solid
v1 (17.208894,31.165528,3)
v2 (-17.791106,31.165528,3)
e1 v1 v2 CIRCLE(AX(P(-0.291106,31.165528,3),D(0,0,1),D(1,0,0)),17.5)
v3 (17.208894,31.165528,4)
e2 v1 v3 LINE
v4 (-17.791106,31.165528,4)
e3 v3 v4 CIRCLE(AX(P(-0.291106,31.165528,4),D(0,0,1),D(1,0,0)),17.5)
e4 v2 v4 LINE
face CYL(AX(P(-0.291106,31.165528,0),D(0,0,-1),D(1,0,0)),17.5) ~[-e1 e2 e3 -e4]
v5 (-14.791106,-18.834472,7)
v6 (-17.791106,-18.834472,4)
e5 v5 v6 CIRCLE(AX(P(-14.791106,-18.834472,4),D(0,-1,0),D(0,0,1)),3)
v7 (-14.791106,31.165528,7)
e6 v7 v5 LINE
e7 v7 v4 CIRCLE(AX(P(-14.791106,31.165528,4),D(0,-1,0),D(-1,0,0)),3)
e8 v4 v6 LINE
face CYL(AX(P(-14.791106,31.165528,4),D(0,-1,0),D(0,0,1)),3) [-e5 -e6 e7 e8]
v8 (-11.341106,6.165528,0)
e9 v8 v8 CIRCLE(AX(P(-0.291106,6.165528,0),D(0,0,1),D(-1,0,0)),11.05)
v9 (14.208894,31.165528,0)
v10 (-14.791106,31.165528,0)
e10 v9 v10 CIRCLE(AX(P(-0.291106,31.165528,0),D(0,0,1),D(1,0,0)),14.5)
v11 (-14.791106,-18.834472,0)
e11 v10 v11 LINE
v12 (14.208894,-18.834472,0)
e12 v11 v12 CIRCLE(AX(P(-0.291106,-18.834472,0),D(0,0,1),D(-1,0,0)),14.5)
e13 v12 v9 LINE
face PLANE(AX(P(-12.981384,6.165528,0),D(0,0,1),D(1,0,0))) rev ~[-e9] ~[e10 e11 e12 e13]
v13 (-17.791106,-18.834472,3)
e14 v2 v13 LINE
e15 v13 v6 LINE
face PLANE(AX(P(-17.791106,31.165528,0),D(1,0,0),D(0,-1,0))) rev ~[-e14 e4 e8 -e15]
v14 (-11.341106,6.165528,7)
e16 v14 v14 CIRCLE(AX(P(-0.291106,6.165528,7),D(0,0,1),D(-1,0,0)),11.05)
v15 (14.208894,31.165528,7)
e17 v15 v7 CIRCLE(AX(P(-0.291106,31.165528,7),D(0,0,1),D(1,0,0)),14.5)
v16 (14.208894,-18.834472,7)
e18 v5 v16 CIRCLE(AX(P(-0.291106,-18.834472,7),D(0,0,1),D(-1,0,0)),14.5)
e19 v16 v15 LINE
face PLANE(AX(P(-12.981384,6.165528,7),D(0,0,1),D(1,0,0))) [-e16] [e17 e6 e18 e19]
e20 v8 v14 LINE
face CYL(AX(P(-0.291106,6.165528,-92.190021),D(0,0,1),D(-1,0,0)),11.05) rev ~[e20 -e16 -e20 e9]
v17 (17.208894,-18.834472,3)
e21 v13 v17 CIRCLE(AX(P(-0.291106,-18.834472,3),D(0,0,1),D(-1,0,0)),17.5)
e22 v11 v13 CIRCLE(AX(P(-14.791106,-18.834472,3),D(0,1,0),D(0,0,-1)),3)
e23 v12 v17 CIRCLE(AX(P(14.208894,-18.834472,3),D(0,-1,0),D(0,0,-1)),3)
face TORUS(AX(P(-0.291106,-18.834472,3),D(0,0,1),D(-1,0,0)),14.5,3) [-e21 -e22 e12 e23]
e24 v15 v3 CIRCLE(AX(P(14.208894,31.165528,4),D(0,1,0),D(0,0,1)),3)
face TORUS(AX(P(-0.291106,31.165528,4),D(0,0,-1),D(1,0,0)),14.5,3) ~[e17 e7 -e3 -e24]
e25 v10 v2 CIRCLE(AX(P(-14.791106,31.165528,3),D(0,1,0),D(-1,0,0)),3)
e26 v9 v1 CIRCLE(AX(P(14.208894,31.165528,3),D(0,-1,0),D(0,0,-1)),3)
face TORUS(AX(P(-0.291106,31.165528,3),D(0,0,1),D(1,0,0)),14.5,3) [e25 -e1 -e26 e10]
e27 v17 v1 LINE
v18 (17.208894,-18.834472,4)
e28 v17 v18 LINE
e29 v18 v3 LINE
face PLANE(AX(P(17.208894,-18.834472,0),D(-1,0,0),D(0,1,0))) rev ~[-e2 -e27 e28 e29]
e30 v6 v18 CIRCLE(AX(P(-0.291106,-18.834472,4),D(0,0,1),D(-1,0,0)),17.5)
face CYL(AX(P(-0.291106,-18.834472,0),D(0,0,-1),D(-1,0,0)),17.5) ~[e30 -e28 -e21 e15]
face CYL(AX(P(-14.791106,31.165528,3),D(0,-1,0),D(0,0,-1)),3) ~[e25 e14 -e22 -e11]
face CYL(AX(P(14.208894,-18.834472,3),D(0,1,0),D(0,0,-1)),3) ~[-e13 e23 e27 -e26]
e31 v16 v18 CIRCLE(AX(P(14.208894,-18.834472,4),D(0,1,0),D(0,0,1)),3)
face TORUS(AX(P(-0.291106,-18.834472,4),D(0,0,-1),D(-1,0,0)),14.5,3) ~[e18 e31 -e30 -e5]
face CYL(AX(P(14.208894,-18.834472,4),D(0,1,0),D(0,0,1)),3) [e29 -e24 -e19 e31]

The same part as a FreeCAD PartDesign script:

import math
import FreeCAD as App
import Part
import Sketcher

V = App.Vector
Q = App.Units.Quantity


def edges_at(feature, points):
    """Names of the edges that pass closest to the given points."""
    edges = feature.Shape.Edges
    near = lambda p: min(range(len(edges)), key=lambda i: edges[i].distToShape(Part.Vertex(*p))[0])
    return sorted({f"Edge{near(p) + 1}" for p in points})

doc = App.newDocument("Part")
body = doc.addObject("PartDesign::Body", "Body")

# Sketch on XY plane
sketch1 = body.newObject("Sketcher::SketchObject", "Sketch")
sketch1.AttachmentSupport = (doc.getObject("XY_Plane"), [""])
sketch1.MapMode = "FlatFace"
sketch1.addGeometry(Part.LineSegment(V(-18, 31, 0), V(-18, -19, 0)), False)
sketch1.addGeometry(Part.ArcOfCircle(Part.Circle(V(0, -19, 0), V(0, 0, 1), 18), math.radians(180), math.radians(360)), False)
sketch1.addGeometry(Part.LineSegment(V(17, -19, 0), V(17, 31, 0)), False)
sketch1.addGeometry(Part.ArcOfCircle(Part.Circle(V(0, 31, 0), V(0, 0, 1), 18), math.radians(0), math.radians(180)), False)
sketch1.addConstraint(Sketcher.Constraint("Tangent", 0, 2, 1, 1))
sketch1.addConstraint(Sketcher.Constraint("Tangent", 1, 2, 2, 1))
sketch1.addConstraint(Sketcher.Constraint("Tangent", 2, 2, 3, 1))
sketch1.addConstraint(Sketcher.Constraint("Tangent", 3, 2, 0, 1))
sketch1.addConstraint(Sketcher.Constraint("Vertical", 0))
sketch1.addConstraint(Sketcher.Constraint("Vertical", 2))
sketch1.addConstraint(Sketcher.Constraint("Radius", 1, Q("17.5 mm")))
sketch1.addConstraint(Sketcher.Constraint("DistanceY", 0, 2, 0, 1, Q("50 mm")))
sketch1.addConstraint(Sketcher.Constraint("DistanceY", 1, 3, -1, 1, Q("18.834472 mm")))
sketch1.addConstraint(Sketcher.Constraint("DistanceX", 1, 3, -1, 1, Q("0.291106 mm")))
pad1 = body.newObject("PartDesign::Pad", "Pad")
pad1.Profile = sketch1
pad1.Length = 7

# Sketch on XY plane
sketch2 = body.newObject("Sketcher::SketchObject", "Sketch001")
sketch2.AttachmentSupport = (doc.getObject("XY_Plane"), [""])
sketch2.MapMode = "FlatFace"
sketch2.addGeometry(Part.Circle(V(0, 6, 0), V(0, 0, 1), 11), False)
sketch2.addConstraint(Sketcher.Constraint("Diameter", 0, Q("22.1 mm")))
sketch2.addConstraint(Sketcher.Constraint("DistanceY", -1, 1, 0, 3, Q("6.165528 mm")))
sketch2.addConstraint(Sketcher.Constraint("DistanceX", 0, 3, -1, 1, Q("0.291106 mm")))
doc.recompute()
hole = body.newObject("PartDesign::Hole", "Hole")
hole.Profile = sketch2
hole.ThreadType = "None"
hole.Diameter = 22.1
hole.DepthType = "ThroughAll"
hole.Reversed = True
doc.recompute()

fillet = body.newObject("PartDesign::Fillet", "Fillet")
fillet.Base = (hole, edges_at(hole, [
    (17.209, -18.834, 3.5),
    (17.209, 31.166, 3.5),
    (17.209, 6.166, 0),
    (17.209, 6.166, 7),
    (-17.791, -18.834, 3.5),
    (-0.291, -36.334, 0),
    (-0.291, -36.334, 7),
    (-17.791, 31.166, 3.5),
    (-17.791, 6.166, 0),
    (-17.791, 6.166, 7),
]))
fillet.Radius = 3

doc.recompute()
